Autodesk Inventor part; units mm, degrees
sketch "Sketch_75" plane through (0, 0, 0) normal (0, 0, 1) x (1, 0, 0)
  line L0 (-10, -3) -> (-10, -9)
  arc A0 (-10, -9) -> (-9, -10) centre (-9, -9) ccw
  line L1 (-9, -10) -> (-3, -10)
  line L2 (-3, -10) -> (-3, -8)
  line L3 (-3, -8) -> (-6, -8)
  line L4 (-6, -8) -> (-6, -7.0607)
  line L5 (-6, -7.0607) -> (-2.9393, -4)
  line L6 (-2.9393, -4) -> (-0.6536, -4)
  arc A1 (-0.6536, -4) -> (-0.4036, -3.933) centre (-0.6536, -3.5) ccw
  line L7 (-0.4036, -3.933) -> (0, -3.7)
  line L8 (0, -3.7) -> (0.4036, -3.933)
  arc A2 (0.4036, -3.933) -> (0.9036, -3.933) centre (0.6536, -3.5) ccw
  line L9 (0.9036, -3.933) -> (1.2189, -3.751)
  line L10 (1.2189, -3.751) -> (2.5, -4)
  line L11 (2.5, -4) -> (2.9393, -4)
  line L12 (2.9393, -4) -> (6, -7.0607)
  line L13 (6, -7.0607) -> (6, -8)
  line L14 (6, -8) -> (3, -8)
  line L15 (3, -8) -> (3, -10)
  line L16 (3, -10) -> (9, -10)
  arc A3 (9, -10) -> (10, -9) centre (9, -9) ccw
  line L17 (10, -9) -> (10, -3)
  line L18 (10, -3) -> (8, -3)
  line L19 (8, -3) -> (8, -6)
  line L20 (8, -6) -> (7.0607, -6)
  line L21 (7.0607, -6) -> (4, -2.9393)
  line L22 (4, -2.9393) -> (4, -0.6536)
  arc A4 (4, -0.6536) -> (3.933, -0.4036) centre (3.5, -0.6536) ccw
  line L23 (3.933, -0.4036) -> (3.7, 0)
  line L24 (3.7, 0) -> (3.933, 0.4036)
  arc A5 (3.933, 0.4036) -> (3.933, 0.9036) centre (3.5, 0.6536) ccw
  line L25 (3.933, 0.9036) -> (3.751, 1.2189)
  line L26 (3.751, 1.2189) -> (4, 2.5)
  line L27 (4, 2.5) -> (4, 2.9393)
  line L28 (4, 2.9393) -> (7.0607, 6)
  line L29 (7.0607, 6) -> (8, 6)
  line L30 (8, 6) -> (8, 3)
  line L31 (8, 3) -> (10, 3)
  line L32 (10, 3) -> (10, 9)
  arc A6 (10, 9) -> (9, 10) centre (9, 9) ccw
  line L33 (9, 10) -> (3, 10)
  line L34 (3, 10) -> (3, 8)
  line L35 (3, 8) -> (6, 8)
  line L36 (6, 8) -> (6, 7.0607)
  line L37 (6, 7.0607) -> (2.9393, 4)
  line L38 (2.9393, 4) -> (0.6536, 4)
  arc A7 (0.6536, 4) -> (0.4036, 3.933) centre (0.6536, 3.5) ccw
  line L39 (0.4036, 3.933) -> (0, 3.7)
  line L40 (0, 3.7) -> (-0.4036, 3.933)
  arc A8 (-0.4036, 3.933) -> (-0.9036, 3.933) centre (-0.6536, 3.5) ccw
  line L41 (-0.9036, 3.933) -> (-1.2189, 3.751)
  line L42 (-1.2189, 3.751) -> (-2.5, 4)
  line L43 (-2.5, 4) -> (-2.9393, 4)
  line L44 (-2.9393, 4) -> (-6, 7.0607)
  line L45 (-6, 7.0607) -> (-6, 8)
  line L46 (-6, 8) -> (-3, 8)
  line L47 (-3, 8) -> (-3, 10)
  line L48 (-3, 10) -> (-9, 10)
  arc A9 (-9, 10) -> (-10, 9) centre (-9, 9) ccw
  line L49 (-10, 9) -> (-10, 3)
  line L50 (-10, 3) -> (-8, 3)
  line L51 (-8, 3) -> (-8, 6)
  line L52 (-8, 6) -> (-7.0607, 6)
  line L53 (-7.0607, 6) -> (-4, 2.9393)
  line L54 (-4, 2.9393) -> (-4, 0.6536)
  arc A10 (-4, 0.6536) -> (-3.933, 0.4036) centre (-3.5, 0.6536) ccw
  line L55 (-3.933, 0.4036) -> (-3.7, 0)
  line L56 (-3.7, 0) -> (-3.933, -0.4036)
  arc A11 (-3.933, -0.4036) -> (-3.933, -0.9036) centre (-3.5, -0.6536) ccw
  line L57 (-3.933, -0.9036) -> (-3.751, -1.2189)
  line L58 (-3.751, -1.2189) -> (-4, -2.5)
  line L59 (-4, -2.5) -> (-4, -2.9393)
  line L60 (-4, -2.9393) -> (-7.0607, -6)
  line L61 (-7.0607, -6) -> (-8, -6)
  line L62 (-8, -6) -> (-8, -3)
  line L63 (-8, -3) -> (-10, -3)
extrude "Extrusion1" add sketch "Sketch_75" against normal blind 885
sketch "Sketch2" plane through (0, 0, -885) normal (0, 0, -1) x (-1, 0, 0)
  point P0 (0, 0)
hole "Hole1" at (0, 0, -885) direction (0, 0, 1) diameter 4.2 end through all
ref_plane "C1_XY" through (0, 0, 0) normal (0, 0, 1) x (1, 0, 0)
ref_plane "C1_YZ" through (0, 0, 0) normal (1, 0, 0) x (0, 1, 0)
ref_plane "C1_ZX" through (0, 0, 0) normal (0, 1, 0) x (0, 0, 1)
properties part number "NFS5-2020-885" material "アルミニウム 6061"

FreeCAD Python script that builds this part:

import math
import FreeCAD as App
import Part
import Sketcher

V = App.Vector
Q = App.Units.Quantity

doc = App.newDocument("Part")
params = doc.addObject("Spreadsheet::Sheet", "Params")
for row, (alias, value) in enumerate([
    ("sketch1_radius", "1 mm"),
    ("sketch1_radius2", "0.5 mm"),
    ("sketch1_width", "2 mm"),
    ("sketch1_width2", "6 mm"),
    ("sketch1_width3", "3 mm"),
    ("pad1_length", "885 mm"),
    ("sketch2_diameter", "4.2 mm"),
    ("hole_diameter", "4.2 mm"),
], start=1):
    params.set(f"A{row}", alias)
    params.set(f"B{row}", "=" + value)
    params.setAlias(f"B{row}", alias)

body = doc.addObject("PartDesign::Body", "Body")

sketch1 = doc.addObject("Sketcher::SketchObject", "Sketch")
body.addObject(sketch1)
sketch1.AttachmentSupport = (doc.XY_Plane, [""])
sketch1.MapMode = "FlatFace"
sketch1.addGeometry([
    Part.LineSegment(V(-8, -3, 0), V(-10, -3, 0)),
    Part.LineSegment(V(-10, -3, 0), V(-10, -9, 0)),
    Part.ArcOfCircle(Part.Circle(V(-9, -9, 0), V(0, 0, 1), 1), math.radians(180), math.radians(270)),
    Part.LineSegment(V(-9, -10, 0), V(-3, -10, 0)),
    Part.LineSegment(V(-3, -10, 0), V(-3, -8, 0)),
    Part.LineSegment(V(-3, -8, 0), V(-6, -8, 0)),
    Part.LineSegment(V(-6, -8, 0), V(-6, -7.0607, 0)),
    Part.LineSegment(V(-6, -7.0607, 0), V(-2.9393, -4, 0)),
    Part.LineSegment(V(-2.9393, -4, 0), V(-0.6536, -4, 0)),
    Part.ArcOfCircle(Part.Circle(V(-0.6536, -3.5, 0), V(0, 0, 1), 0.5), math.radians(-90), math.radians(-59.999272)),
    Part.LineSegment(V(-0.4036, -3.933, 0), V(0, -3.7, 0)),
    Part.LineSegment(V(0, -3.7, 0), V(0.4036, -3.933, 0)),
    Part.ArcOfCircle(Part.Circle(V(0.6536, -3.5, 0), V(0, 0, 1), 0.499989), math.radians(-120.000728), math.radians(-59.999272)),
    Part.LineSegment(V(0.9036, -3.933, 0), V(1.2189, -3.751, 0)),
    Part.LineSegment(V(1.2189, -3.751, 0), V(2.5, -4, 0)),
    Part.LineSegment(V(2.5, -4, 0), V(2.9393, -4, 0)),
    Part.LineSegment(V(2.9393, -4, 0), V(6, -7.0607, 0)),
    Part.LineSegment(V(6, -7.0607, 0), V(6, -8, 0)),
    Part.LineSegment(V(6, -8, 0), V(3, -8, 0)),
    Part.LineSegment(V(3, -8, 0), V(3, -10, 0)),
    Part.LineSegment(V(3, -10, 0), V(9, -10, 0)),
    Part.ArcOfCircle(Part.Circle(V(9, -9, 0), V(0, 0, 1), 1), math.radians(-90), math.radians(0)),
    Part.LineSegment(V(10, -9, 0), V(10, -3, 0)),
    Part.LineSegment(V(10, -3, 0), V(8, -3, 0)),
    Part.LineSegment(V(8, -3, 0), V(8, -6, 0)),
    Part.LineSegment(V(8, -6, 0), V(7.0607, -6, 0)),
    Part.LineSegment(V(7.0607, -6, 0), V(4, -2.9393, 0)),
    Part.LineSegment(V(4, -2.9393, 0), V(4, -0.6536, 0)),
    Part.ArcOfCircle(Part.Circle(V(3.5, -0.6536, 0), V(0, 0, 1), 0.5), math.radians(0), math.radians(30.000728)),
    Part.LineSegment(V(3.933, -0.4036, 0), V(3.7, 0, 0)),
    Part.LineSegment(V(3.7, 0, 0), V(3.933, 0.4036, 0)),
    Part.ArcOfCircle(Part.Circle(V(3.5, 0.6536, 0), V(0, 0, 1), 0.499989), math.radians(-30.000728), math.radians(30.000728)),
    Part.LineSegment(V(3.933, 0.9036, 0), V(3.751, 1.2189, 0)),
    Part.LineSegment(V(3.751, 1.2189, 0), V(4, 2.5, 0)),
    Part.LineSegment(V(4, 2.5, 0), V(4, 2.9393, 0)),
    Part.LineSegment(V(4, 2.9393, 0), V(7.0607, 6, 0)),
    Part.LineSegment(V(7.0607, 6, 0), V(8, 6, 0)),
    Part.LineSegment(V(8, 6, 0), V(8, 3, 0)),
    Part.LineSegment(V(8, 3, 0), V(10, 3, 0)),
    Part.LineSegment(V(10, 3, 0), V(10, 9, 0)),
    Part.ArcOfCircle(Part.Circle(V(9, 9, 0), V(0, 0, 1), 1), math.radians(0), math.radians(90)),
    Part.LineSegment(V(9, 10, 0), V(3, 10, 0)),
    Part.LineSegment(V(3, 10, 0), V(3, 8, 0)),
    Part.LineSegment(V(3, 8, 0), V(6, 8, 0)),
    Part.LineSegment(V(6, 8, 0), V(6, 7.0607, 0)),
    Part.LineSegment(V(6, 7.0607, 0), V(2.9393, 4, 0)),
    Part.LineSegment(V(2.9393, 4, 0), V(0.6536, 4, 0)),
    Part.ArcOfCircle(Part.Circle(V(0.6536, 3.5, 0), V(0, 0, 1), 0.5), math.radians(90), math.radians(120.000728)),
    Part.LineSegment(V(0.4036, 3.933, 0), V(0, 3.7, 0)),
    Part.LineSegment(V(0, 3.7, 0), V(-0.4036, 3.933, 0)),
    Part.ArcOfCircle(Part.Circle(V(-0.6536, 3.5, 0), V(0, 0, 1), 0.499989), math.radians(59.999272), math.radians(120.000728)),
    Part.LineSegment(V(-0.9036, 3.933, 0), V(-1.2189, 3.751, 0)),
    Part.LineSegment(V(-1.2189, 3.751, 0), V(-2.5, 4, 0)),
    Part.LineSegment(V(-2.5, 4, 0), V(-2.9393, 4, 0)),
    Part.LineSegment(V(-2.9393, 4, 0), V(-6, 7.0607, 0)),
    Part.LineSegment(V(-6, 7.0607, 0), V(-6, 8, 0)),
    Part.LineSegment(V(-6, 8, 0), V(-3, 8, 0)),
    Part.LineSegment(V(-3, 8, 0), V(-3, 10, 0)),
    Part.LineSegment(V(-3, 10, 0), V(-9, 10, 0)),
    Part.ArcOfCircle(Part.Circle(V(-9, 9, 0), V(0, 0, 1), 1), math.radians(90), math.radians(180)),
    Part.LineSegment(V(-10, 9, 0), V(-10, 3, 0)),
    Part.LineSegment(V(-10, 3, 0), V(-8, 3, 0)),
    Part.LineSegment(V(-8, 3, 0), V(-8, 6, 0)),
    Part.LineSegment(V(-8, 6, 0), V(-7.0607, 6, 0)),
    Part.LineSegment(V(-7.0607, 6, 0), V(-4, 2.9393, 0)),
    Part.LineSegment(V(-4, 2.9393, 0), V(-4, 0.6536, 0)),
    Part.ArcOfCircle(Part.Circle(V(-3.5, 0.6536, 0), V(0, 0, 1), 0.5), math.radians(180), math.radians(210.000728)),
    Part.LineSegment(V(-3.933, 0.4036, 0), V(-3.7, 0, 0)),
    Part.LineSegment(V(-3.7, 0, 0), V(-3.933, -0.4036, 0)),
    Part.ArcOfCircle(Part.Circle(V(-3.5, -0.6536, 0), V(0, 0, 1), 0.499989), math.radians(149.999272), math.radians(210.000728)),
    Part.LineSegment(V(-3.933, -0.9036, 0), V(-3.751, -1.2189, 0)),
    Part.LineSegment(V(-3.751, -1.2189, 0), V(-4, -2.5, 0)),
    Part.LineSegment(V(-4, -2.5, 0), V(-4, -2.9393, 0)),
    Part.LineSegment(V(-4, -2.9393, 0), V(-7.0607, -6, 0)),
    Part.LineSegment(V(-7.0607, -6, 0), V(-8, -6, 0)),
    Part.LineSegment(V(-8, -6, 0), V(-8, -3, 0)),
], False)
sketch1.addConstraint([
    Sketcher.Constraint("Coincident", 0, 2, 1, 1),
    Sketcher.Constraint("Tangent", 1, 2, 2, 1),
    Sketcher.Constraint("Tangent", 2, 2, 3, 1),
    Sketcher.Constraint("Coincident", 3, 2, 4, 1),
    Sketcher.Constraint("Coincident", 4, 2, 5, 1),
    Sketcher.Constraint("Coincident", 5, 2, 6, 1),
    Sketcher.Constraint("Coincident", 6, 2, 7, 1),
    Sketcher.Constraint("Coincident", 7, 2, 8, 1),
    Sketcher.Constraint("Tangent", 8, 2, 9, 1),
    Sketcher.Constraint("Tangent", 9, 2, 10, 1),
    Sketcher.Constraint("Coincident", 10, 2, 11, 1),
    Sketcher.Constraint("Tangent", 11, 2, 12, 1),
    Sketcher.Constraint("Tangent", 12, 2, 13, 1),
    Sketcher.Constraint("Coincident", 13, 2, 14, 1),
    Sketcher.Constraint("Coincident", 14, 2, 15, 1),
    Sketcher.Constraint("Coincident", 15, 2, 16, 1),
    Sketcher.Constraint("Coincident", 16, 2, 17, 1),
    Sketcher.Constraint("Coincident", 17, 2, 18, 1),
    Sketcher.Constraint("Coincident", 18, 2, 19, 1),
    Sketcher.Constraint("Coincident", 19, 2, 20, 1),
    Sketcher.Constraint("Tangent", 20, 2, 21, 1),
    Sketcher.Constraint("Tangent", 21, 2, 22, 1),
    Sketcher.Constraint("Coincident", 22, 2, 23, 1),
    Sketcher.Constraint("Coincident", 23, 2, 24, 1),
    Sketcher.Constraint("Coincident", 24, 2, 25, 1),
    Sketcher.Constraint("Coincident", 25, 2, 26, 1),
    Sketcher.Constraint("Coincident", 26, 2, 27, 1),
    Sketcher.Constraint("Tangent", 27, 2, 28, 1),
    Sketcher.Constraint("Tangent", 28, 2, 29, 1),
    Sketcher.Constraint("Coincident", 29, 2, 30, 1),
    Sketcher.Constraint("Tangent", 30, 2, 31, 1),
    Sketcher.Constraint("Tangent", 31, 2, 32, 1),
    Sketcher.Constraint("Coincident", 32, 2, 33, 1),
    Sketcher.Constraint("Coincident", 33, 2, 34, 1),
    Sketcher.Constraint("Coincident", 34, 2, 35, 1),
    Sketcher.Constraint("Coincident", 35, 2, 36, 1),
    Sketcher.Constraint("Coincident", 36, 2, 37, 1),
    Sketcher.Constraint("Coincident", 37, 2, 38, 1),
    Sketcher.Constraint("Coincident", 38, 2, 39, 1),
    Sketcher.Constraint("Tangent", 39, 2, 40, 1),
    Sketcher.Constraint("Tangent", 40, 2, 41, 1),
    Sketcher.Constraint("Coincident", 41, 2, 42, 1),
    Sketcher.Constraint("Coincident", 42, 2, 43, 1),
    Sketcher.Constraint("Coincident", 43, 2, 44, 1),
    Sketcher.Constraint("Coincident", 44, 2, 45, 1),
    Sketcher.Constraint("Coincident", 45, 2, 46, 1),
    Sketcher.Constraint("Tangent", 46, 2, 47, 1),
    Sketcher.Constraint("Tangent", 47, 2, 48, 1),
    Sketcher.Constraint("Coincident", 48, 2, 49, 1),
    Sketcher.Constraint("Tangent", 49, 2, 50, 1),
    Sketcher.Constraint("Tangent", 50, 2, 51, 1),
    Sketcher.Constraint("Coincident", 51, 2, 52, 1),
    Sketcher.Constraint("Coincident", 52, 2, 53, 1),
    Sketcher.Constraint("Coincident", 53, 2, 54, 1),
    Sketcher.Constraint("Coincident", 54, 2, 55, 1),
    Sketcher.Constraint("Coincident", 55, 2, 56, 1),
    Sketcher.Constraint("Coincident", 56, 2, 57, 1),
    Sketcher.Constraint("Coincident", 57, 2, 58, 1),
    Sketcher.Constraint("Tangent", 58, 2, 59, 1),
    Sketcher.Constraint("Tangent", 59, 2, 60, 1),
    Sketcher.Constraint("Coincident", 60, 2, 61, 1),
    Sketcher.Constraint("Coincident", 61, 2, 62, 1),
    Sketcher.Constraint("Coincident", 62, 2, 63, 1),
    Sketcher.Constraint("Coincident", 63, 2, 64, 1),
    Sketcher.Constraint("Coincident", 64, 2, 65, 1),
    Sketcher.Constraint("Tangent", 65, 2, 66, 1),
    Sketcher.Constraint("Tangent", 66, 2, 67, 1),
    Sketcher.Constraint("Coincident", 67, 2, 68, 1),
    Sketcher.Constraint("Tangent", 68, 2, 69, 1),
    Sketcher.Constraint("Tangent", 69, 2, 70, 1),
    Sketcher.Constraint("Coincident", 70, 2, 71, 1),
    Sketcher.Constraint("Coincident", 71, 2, 72, 1),
    Sketcher.Constraint("Coincident", 72, 2, 73, 1),
    Sketcher.Constraint("Coincident", 73, 2, 74, 1),
    Sketcher.Constraint("Coincident", 74, 2, 75, 1),
    Sketcher.Constraint("Coincident", 75, 2, 0, 1),
    Sketcher.Constraint("Horizontal", 0),
    Sketcher.Constraint("Vertical", 1),
    Sketcher.Constraint("Horizontal", 3),
    Sketcher.Constraint("Vertical", 4),
    Sketcher.Constraint("Horizontal", 5),
    Sketcher.Constraint("Vertical", 6),
    Sketcher.Constraint("Horizontal", 8),
    Sketcher.Constraint("Horizontal", 15),
    Sketcher.Constraint("Vertical", 17),
    Sketcher.Constraint("Horizontal", 18),
    Sketcher.Constraint("Vertical", 19),
    Sketcher.Constraint("Horizontal", 20),
    Sketcher.Constraint("Vertical", 22),
    Sketcher.Constraint("Horizontal", 23),
    Sketcher.Constraint("Vertical", 24),
    Sketcher.Constraint("Horizontal", 25),
    Sketcher.Constraint("Vertical", 27),
    Sketcher.Constraint("Vertical", 34),
    Sketcher.Constraint("Horizontal", 36),
    Sketcher.Constraint("Vertical", 37),
    Sketcher.Constraint("Horizontal", 38),
    Sketcher.Constraint("Vertical", 39),
    Sketcher.Constraint("Horizontal", 41),
    Sketcher.Constraint("Vertical", 42),
    Sketcher.Constraint("Horizontal", 43),
    Sketcher.Constraint("Vertical", 44),
    Sketcher.Constraint("Horizontal", 46),
    Sketcher.Constraint("Horizontal", 53),
    Sketcher.Constraint("Vertical", 55),
    Sketcher.Constraint("Horizontal", 56),
    Sketcher.Constraint("Vertical", 57),
    Sketcher.Constraint("Horizontal", 58),
    Sketcher.Constraint("Vertical", 60),
    Sketcher.Constraint("Horizontal", 61),
    Sketcher.Constraint("Vertical", 62),
    Sketcher.Constraint("Horizontal", 63),
    Sketcher.Constraint("Vertical", 65),
    Sketcher.Constraint("Vertical", 72),
    Sketcher.Constraint("Horizontal", 74),
    Sketcher.Constraint("Vertical", 75),
    Sketcher.Constraint("Equal", 9, 12),
    Sketcher.Constraint("Equal", 2, 21),
    Sketcher.Constraint("Equal", 12, 28),
    Sketcher.Constraint("Equal", 28, 31),
    Sketcher.Constraint("Equal", 21, 40),
    Sketcher.Constraint("Equal", 31, 47),
    Sketcher.Constraint("Equal", 47, 50),
    Sketcher.Constraint("Equal", 40, 59),
    Sketcher.Constraint("Equal", 50, 66),
    Sketcher.Constraint("Equal", 66, 69),
    Sketcher.Constraint("Symmetric", 2, 3, 40, 3, -1, 1),
    Sketcher.Constraint("Symmetric", 9, 3, 47, 3, -1, 1),
    Sketcher.Constraint("Symmetric", 12, 3, 50, 3, -1, 1),
    Sketcher.Constraint("Symmetric", 21, 3, 59, 3, -1, 1),
    Sketcher.Constraint("Symmetric", 28, 3, 66, 3, -1, 1),
    Sketcher.Constraint("Symmetric", 31, 3, 69, 3, -1, 1),
    Sketcher.Constraint("Symmetric", 4, 2, 42, 2, -1, 1),
    Sketcher.Constraint("Symmetric", 6, 2, 44, 2, -1, 1),
    Sketcher.Constraint("Symmetric", 10, 2, 48, 2, -1, 1),
    Sketcher.Constraint("Symmetric", 13, 2, 51, 2, -1, 1),
    Sketcher.Constraint("Symmetric", 14, 2, 52, 2, -1, 1),
    Sketcher.Constraint("Symmetric", 16, 2, 54, 2, -1, 1),
    Sketcher.Constraint("Symmetric", 18, 2, 56, 2, -1, 1),
    Sketcher.Constraint("Symmetric", 23, 2, 61, 2, -1, 1),
    Sketcher.Constraint("Symmetric", 25, 2, 63, 2, -1, 1),
    Sketcher.Constraint("Symmetric", 29, 2, 67, 2, -1, 1),
    Sketcher.Constraint("Symmetric", 32, 2, 70, 2, -1, 1),
    Sketcher.Constraint("Symmetric", 33, 2, 71, 2, -1, 1),
    Sketcher.Constraint("Symmetric", 35, 2, 73, 2, -1, 1),
    Sketcher.Constraint("Symmetric", 37, 2, 75, 2, -1, 1),
    Sketcher.Constraint("Symmetric", 9, 3, 12, 3, -2),
    Sketcher.Constraint("Symmetric", 2, 3, 21, 3, -2),
    Sketcher.Constraint("Symmetric", 31, 3, 66, 3, -2),
    Sketcher.Constraint("Symmetric", 7, 2, 15, 2, -2),
    Sketcher.Constraint("Symmetric", 6, 2, 16, 2, -2),
    Sketcher.Constraint("Symmetric", 4, 2, 18, 2, -2),
    Sketcher.Constraint("Symmetric", 37, 2, 61, 2, -2),
    Sketcher.Constraint("Symmetric", 35, 2, 63, 2, -2),
    Sketcher.Constraint("Symmetric", 34, 2, 64, 2, -2),
    Sketcher.Constraint("PointOnObject", 10, 2, -2),
    Sketcher.Constraint("PointOnObject", 29, 2, -1),
    Sketcher.Constraint("Parallel", 10, 13),
    Sketcher.Constraint("Perpendicular", 7, 16),
    Sketcher.Constraint("Parallel", 16, 26),
    Sketcher.Constraint("Perpendicular", 13, 29),
    Sketcher.Constraint("Parallel", 29, 32),
    Sketcher.Constraint("Perpendicular", 14, 33),
    Sketcher.Constraint("Perpendicular", 26, 35),
    Sketcher.Constraint("Parallel", 35, 45),
    Sketcher.Constraint("Perpendicular", 45, 54),
    Sketcher.Constraint("Perpendicular", 64, 73),
    Sketcher.Constraint("Equal", 58, 1),
    Sketcher.Constraint("Equal", 61, 4),
    Sketcher.Constraint("Equal", 74, 6),
    Sketcher.Constraint("Equal", 56, 24),
    Sketcher.Constraint("Equal", 46, 27),
    Sketcher.Constraint("Equal", 53, 34),
    Sketcher.Constraint("Equal", 16, 26),
    Sketcher.Constraint("Equal", 11, 29),
    Sketcher.Constraint("Radius", 2, Q("1 mm")),
    Sketcher.Constraint("Radius", 9, Q("0.5 mm")),
    Sketcher.Constraint("DistanceX", 0, 2, 0, 1, Q("2 mm")),
    Sketcher.Constraint("DistanceX", 3, 1, 3, 2, Q("6 mm")),
    Sketcher.Constraint("DistanceX", 5, 2, 5, 1, Q("3 mm")),
    Sketcher.Constraint("Angle", 14, Q("-10.999 deg")),
    Sketcher.Constraint("DistanceX", 2, 3, -1, 1, Q("9 mm")),
    Sketcher.Constraint("DistanceY", 7, 2, -1, 1, Q("4 mm")),
    Sketcher.Constraint("DistanceY", 10, 2, -1, 1, Q("3.7 mm")),
    Sketcher.Constraint("DistanceX", -1, 1, 14, 2, Q("2.5 mm")),
    Sketcher.Constraint("Distance", 10, Q("0.466 mm")),
    Sketcher.Constraint("DistanceX", 8, 1, 8, 2, Q("2.2857 mm")),
])
sketch1.setExpression("Constraints[175]", "Params.sketch1_radius")
sketch1.setExpression("Constraints[176]", "Params.sketch1_radius2")
sketch1.setExpression("Constraints[177]", "Params.sketch1_width")
sketch1.setExpression("Constraints[178]", "Params.sketch1_width2")
sketch1.setExpression("Constraints[179]", "Params.sketch1_width3")
pad1 = doc.addObject("PartDesign::Pad", "Pad")
body.addObject(pad1)
pad1.Profile = sketch1
pad1.setExpression("Length", "Params.pad1_length")
pad1.Reversed = True

sketch2 = doc.addObject("Sketcher::SketchObject", "Sketch001")
body.addObject(sketch2)
sketch2.AttachmentSupport = (doc.XY_Plane, [""])
sketch2.MapMode = "FlatFace"
sketch2.AttachmentOffset = App.Placement(V(0, 0, -885), App.Rotation())
sketch2.addGeometry(Part.Circle(V(0, 0, 0), V(0, 0, 1), 2.1), False)
sketch2.addConstraint([
    Sketcher.Constraint("Coincident", 0, 3, -1, 1),
    Sketcher.Constraint("Diameter", 0, Q("4.2 mm")),
])
sketch2.setExpression("Constraints[1]", "Params.sketch2_diameter")
doc.recompute()
hole = doc.addObject("PartDesign::Hole", "Hole")
body.addObject(hole)
hole.Profile = sketch2
hole.ThreadType = "None"
hole.setExpression("Diameter", "Params.hole_diameter")
hole.DepthType = "ThroughAll"
hole.Reversed = True

doc.recompute()
